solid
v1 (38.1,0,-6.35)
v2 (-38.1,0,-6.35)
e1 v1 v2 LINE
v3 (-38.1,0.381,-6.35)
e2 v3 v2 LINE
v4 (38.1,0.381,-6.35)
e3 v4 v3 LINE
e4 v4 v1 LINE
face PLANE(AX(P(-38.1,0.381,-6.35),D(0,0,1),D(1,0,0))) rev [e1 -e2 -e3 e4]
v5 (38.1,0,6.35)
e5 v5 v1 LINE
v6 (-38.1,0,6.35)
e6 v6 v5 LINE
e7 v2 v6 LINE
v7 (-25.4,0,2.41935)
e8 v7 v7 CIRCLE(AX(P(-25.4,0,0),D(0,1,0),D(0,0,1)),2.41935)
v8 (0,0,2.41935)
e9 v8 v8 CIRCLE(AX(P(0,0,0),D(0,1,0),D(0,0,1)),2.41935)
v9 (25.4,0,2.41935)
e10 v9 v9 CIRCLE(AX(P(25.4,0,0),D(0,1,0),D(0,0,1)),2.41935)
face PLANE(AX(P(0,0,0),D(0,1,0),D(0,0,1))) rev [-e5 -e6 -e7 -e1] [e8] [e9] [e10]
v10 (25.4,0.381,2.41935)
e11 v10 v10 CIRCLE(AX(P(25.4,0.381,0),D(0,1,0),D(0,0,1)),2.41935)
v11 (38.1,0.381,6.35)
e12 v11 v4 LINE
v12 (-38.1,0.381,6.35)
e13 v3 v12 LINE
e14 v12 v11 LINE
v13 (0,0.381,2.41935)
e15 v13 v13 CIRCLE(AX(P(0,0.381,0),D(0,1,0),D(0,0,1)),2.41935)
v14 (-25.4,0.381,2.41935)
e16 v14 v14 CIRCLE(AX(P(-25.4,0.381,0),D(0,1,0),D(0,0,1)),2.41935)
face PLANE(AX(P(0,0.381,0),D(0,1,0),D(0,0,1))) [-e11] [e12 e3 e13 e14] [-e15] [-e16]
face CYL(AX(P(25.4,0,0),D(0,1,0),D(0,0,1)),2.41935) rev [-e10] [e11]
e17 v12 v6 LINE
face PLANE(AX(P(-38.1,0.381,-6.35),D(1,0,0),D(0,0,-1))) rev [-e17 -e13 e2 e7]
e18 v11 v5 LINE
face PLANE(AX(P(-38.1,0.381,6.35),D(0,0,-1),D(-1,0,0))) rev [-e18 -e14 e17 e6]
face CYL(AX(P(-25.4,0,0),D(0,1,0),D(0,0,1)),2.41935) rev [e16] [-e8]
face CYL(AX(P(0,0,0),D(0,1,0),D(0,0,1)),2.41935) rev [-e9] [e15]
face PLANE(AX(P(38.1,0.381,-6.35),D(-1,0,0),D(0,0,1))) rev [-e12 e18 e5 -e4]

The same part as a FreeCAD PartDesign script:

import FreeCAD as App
import Part
import Sketcher
Q = App.Units.Quantity

doc = App.newDocument("Part")
body = doc.addObject("PartDesign::Body", "Body")

sketch1 = body.newObject("Sketcher::SketchObject", "Sketch")
sketch1.AttachmentSupport = (doc.getObject("XZ_Plane"), [""])
sketch1.MapMode = "FlatFace"
sketch1.addGeometry([
    Part.LineSegment(App.Vector(-38.1, -6.35, 0), App.Vector(-38.1, 6.35, 0)),
    Part.LineSegment(App.Vector(-38.1, 6.35, 0), App.Vector(38.1, 6.35, 0)),
    Part.LineSegment(App.Vector(38.1, 6.35, 0), App.Vector(38.1, -6.35, 0)),
    Part.LineSegment(App.Vector(38.1, -6.35, 0), App.Vector(-38.1, -6.35, 0)),
], False)
sketch1.addConstraint([
    Sketcher.Constraint("Coincident", 0, 2, 1, 1),
    Sketcher.Constraint("Coincident", 1, 2, 2, 1),
    Sketcher.Constraint("Coincident", 2, 2, 3, 1),
    Sketcher.Constraint("Coincident", 3, 2, 0, 1),
    Sketcher.Constraint("Vertical", 0),
    Sketcher.Constraint("Horizontal", 1),
    Sketcher.Constraint("Vertical", 2),
    Sketcher.Constraint("Horizontal", 3),
    Sketcher.Constraint("Symmetric", 0, 2, 2, 2, -1, 1),
    Sketcher.Constraint("DistanceX", 1, 1, 1, 2, Q("3 in")),
    Sketcher.Constraint("DistanceY", 0, 1, 0, 2, Q("0.5 in")),
])
pad1 = body.newObject("PartDesign::Pad", "Pad")
pad1.Profile = sketch1
pad1.Length = Q("0.015 in")
pad1.Reversed = True

sketch2 = body.newObject("Sketcher::SketchObject", "Sketch001")
sketch2.AttachmentSupport = (doc.getObject("XZ_Plane"), [""])
sketch2.MapMode = "FlatFace"
sketch2.AttachmentOffset = App.Placement(App.Vector(0, 0, -0.015 * 25.4), App.Rotation())
sketch2.addGeometry([
    Part.Circle(App.Vector(0, 0, 0), App.Vector(0, 0, 1), 2.41935),
    Part.Circle(App.Vector(-25.4, 0, 0), App.Vector(0, 0, 1), 2.41935),
    Part.Circle(App.Vector(25.4, 0, 0), App.Vector(0, 0, 1), 2.41935),
], False)
sketch2.addConstraint([
    Sketcher.Constraint("Coincident", 0, 3, -1, 1),
    Sketcher.Constraint("Equal", 0, 1),
    Sketcher.Constraint("Equal", 1, 2),
    Sketcher.Constraint("Symmetric", 1, 3, 2, 3, -1, 1),
    Sketcher.Constraint("PointOnObject", 1, 3, -1),
    Sketcher.Constraint("DistanceX", 1, 3, -1, 1, Q("1 in")),
    Sketcher.Constraint("Diameter", 0, Q("0.1905 in")),
])
pocket1 = body.newObject("PartDesign::Pocket", "Pocket")
pocket1.Profile = sketch2
pocket1.Type = "ThroughAll"
pocket1.Reversed = True

doc.recompute()
